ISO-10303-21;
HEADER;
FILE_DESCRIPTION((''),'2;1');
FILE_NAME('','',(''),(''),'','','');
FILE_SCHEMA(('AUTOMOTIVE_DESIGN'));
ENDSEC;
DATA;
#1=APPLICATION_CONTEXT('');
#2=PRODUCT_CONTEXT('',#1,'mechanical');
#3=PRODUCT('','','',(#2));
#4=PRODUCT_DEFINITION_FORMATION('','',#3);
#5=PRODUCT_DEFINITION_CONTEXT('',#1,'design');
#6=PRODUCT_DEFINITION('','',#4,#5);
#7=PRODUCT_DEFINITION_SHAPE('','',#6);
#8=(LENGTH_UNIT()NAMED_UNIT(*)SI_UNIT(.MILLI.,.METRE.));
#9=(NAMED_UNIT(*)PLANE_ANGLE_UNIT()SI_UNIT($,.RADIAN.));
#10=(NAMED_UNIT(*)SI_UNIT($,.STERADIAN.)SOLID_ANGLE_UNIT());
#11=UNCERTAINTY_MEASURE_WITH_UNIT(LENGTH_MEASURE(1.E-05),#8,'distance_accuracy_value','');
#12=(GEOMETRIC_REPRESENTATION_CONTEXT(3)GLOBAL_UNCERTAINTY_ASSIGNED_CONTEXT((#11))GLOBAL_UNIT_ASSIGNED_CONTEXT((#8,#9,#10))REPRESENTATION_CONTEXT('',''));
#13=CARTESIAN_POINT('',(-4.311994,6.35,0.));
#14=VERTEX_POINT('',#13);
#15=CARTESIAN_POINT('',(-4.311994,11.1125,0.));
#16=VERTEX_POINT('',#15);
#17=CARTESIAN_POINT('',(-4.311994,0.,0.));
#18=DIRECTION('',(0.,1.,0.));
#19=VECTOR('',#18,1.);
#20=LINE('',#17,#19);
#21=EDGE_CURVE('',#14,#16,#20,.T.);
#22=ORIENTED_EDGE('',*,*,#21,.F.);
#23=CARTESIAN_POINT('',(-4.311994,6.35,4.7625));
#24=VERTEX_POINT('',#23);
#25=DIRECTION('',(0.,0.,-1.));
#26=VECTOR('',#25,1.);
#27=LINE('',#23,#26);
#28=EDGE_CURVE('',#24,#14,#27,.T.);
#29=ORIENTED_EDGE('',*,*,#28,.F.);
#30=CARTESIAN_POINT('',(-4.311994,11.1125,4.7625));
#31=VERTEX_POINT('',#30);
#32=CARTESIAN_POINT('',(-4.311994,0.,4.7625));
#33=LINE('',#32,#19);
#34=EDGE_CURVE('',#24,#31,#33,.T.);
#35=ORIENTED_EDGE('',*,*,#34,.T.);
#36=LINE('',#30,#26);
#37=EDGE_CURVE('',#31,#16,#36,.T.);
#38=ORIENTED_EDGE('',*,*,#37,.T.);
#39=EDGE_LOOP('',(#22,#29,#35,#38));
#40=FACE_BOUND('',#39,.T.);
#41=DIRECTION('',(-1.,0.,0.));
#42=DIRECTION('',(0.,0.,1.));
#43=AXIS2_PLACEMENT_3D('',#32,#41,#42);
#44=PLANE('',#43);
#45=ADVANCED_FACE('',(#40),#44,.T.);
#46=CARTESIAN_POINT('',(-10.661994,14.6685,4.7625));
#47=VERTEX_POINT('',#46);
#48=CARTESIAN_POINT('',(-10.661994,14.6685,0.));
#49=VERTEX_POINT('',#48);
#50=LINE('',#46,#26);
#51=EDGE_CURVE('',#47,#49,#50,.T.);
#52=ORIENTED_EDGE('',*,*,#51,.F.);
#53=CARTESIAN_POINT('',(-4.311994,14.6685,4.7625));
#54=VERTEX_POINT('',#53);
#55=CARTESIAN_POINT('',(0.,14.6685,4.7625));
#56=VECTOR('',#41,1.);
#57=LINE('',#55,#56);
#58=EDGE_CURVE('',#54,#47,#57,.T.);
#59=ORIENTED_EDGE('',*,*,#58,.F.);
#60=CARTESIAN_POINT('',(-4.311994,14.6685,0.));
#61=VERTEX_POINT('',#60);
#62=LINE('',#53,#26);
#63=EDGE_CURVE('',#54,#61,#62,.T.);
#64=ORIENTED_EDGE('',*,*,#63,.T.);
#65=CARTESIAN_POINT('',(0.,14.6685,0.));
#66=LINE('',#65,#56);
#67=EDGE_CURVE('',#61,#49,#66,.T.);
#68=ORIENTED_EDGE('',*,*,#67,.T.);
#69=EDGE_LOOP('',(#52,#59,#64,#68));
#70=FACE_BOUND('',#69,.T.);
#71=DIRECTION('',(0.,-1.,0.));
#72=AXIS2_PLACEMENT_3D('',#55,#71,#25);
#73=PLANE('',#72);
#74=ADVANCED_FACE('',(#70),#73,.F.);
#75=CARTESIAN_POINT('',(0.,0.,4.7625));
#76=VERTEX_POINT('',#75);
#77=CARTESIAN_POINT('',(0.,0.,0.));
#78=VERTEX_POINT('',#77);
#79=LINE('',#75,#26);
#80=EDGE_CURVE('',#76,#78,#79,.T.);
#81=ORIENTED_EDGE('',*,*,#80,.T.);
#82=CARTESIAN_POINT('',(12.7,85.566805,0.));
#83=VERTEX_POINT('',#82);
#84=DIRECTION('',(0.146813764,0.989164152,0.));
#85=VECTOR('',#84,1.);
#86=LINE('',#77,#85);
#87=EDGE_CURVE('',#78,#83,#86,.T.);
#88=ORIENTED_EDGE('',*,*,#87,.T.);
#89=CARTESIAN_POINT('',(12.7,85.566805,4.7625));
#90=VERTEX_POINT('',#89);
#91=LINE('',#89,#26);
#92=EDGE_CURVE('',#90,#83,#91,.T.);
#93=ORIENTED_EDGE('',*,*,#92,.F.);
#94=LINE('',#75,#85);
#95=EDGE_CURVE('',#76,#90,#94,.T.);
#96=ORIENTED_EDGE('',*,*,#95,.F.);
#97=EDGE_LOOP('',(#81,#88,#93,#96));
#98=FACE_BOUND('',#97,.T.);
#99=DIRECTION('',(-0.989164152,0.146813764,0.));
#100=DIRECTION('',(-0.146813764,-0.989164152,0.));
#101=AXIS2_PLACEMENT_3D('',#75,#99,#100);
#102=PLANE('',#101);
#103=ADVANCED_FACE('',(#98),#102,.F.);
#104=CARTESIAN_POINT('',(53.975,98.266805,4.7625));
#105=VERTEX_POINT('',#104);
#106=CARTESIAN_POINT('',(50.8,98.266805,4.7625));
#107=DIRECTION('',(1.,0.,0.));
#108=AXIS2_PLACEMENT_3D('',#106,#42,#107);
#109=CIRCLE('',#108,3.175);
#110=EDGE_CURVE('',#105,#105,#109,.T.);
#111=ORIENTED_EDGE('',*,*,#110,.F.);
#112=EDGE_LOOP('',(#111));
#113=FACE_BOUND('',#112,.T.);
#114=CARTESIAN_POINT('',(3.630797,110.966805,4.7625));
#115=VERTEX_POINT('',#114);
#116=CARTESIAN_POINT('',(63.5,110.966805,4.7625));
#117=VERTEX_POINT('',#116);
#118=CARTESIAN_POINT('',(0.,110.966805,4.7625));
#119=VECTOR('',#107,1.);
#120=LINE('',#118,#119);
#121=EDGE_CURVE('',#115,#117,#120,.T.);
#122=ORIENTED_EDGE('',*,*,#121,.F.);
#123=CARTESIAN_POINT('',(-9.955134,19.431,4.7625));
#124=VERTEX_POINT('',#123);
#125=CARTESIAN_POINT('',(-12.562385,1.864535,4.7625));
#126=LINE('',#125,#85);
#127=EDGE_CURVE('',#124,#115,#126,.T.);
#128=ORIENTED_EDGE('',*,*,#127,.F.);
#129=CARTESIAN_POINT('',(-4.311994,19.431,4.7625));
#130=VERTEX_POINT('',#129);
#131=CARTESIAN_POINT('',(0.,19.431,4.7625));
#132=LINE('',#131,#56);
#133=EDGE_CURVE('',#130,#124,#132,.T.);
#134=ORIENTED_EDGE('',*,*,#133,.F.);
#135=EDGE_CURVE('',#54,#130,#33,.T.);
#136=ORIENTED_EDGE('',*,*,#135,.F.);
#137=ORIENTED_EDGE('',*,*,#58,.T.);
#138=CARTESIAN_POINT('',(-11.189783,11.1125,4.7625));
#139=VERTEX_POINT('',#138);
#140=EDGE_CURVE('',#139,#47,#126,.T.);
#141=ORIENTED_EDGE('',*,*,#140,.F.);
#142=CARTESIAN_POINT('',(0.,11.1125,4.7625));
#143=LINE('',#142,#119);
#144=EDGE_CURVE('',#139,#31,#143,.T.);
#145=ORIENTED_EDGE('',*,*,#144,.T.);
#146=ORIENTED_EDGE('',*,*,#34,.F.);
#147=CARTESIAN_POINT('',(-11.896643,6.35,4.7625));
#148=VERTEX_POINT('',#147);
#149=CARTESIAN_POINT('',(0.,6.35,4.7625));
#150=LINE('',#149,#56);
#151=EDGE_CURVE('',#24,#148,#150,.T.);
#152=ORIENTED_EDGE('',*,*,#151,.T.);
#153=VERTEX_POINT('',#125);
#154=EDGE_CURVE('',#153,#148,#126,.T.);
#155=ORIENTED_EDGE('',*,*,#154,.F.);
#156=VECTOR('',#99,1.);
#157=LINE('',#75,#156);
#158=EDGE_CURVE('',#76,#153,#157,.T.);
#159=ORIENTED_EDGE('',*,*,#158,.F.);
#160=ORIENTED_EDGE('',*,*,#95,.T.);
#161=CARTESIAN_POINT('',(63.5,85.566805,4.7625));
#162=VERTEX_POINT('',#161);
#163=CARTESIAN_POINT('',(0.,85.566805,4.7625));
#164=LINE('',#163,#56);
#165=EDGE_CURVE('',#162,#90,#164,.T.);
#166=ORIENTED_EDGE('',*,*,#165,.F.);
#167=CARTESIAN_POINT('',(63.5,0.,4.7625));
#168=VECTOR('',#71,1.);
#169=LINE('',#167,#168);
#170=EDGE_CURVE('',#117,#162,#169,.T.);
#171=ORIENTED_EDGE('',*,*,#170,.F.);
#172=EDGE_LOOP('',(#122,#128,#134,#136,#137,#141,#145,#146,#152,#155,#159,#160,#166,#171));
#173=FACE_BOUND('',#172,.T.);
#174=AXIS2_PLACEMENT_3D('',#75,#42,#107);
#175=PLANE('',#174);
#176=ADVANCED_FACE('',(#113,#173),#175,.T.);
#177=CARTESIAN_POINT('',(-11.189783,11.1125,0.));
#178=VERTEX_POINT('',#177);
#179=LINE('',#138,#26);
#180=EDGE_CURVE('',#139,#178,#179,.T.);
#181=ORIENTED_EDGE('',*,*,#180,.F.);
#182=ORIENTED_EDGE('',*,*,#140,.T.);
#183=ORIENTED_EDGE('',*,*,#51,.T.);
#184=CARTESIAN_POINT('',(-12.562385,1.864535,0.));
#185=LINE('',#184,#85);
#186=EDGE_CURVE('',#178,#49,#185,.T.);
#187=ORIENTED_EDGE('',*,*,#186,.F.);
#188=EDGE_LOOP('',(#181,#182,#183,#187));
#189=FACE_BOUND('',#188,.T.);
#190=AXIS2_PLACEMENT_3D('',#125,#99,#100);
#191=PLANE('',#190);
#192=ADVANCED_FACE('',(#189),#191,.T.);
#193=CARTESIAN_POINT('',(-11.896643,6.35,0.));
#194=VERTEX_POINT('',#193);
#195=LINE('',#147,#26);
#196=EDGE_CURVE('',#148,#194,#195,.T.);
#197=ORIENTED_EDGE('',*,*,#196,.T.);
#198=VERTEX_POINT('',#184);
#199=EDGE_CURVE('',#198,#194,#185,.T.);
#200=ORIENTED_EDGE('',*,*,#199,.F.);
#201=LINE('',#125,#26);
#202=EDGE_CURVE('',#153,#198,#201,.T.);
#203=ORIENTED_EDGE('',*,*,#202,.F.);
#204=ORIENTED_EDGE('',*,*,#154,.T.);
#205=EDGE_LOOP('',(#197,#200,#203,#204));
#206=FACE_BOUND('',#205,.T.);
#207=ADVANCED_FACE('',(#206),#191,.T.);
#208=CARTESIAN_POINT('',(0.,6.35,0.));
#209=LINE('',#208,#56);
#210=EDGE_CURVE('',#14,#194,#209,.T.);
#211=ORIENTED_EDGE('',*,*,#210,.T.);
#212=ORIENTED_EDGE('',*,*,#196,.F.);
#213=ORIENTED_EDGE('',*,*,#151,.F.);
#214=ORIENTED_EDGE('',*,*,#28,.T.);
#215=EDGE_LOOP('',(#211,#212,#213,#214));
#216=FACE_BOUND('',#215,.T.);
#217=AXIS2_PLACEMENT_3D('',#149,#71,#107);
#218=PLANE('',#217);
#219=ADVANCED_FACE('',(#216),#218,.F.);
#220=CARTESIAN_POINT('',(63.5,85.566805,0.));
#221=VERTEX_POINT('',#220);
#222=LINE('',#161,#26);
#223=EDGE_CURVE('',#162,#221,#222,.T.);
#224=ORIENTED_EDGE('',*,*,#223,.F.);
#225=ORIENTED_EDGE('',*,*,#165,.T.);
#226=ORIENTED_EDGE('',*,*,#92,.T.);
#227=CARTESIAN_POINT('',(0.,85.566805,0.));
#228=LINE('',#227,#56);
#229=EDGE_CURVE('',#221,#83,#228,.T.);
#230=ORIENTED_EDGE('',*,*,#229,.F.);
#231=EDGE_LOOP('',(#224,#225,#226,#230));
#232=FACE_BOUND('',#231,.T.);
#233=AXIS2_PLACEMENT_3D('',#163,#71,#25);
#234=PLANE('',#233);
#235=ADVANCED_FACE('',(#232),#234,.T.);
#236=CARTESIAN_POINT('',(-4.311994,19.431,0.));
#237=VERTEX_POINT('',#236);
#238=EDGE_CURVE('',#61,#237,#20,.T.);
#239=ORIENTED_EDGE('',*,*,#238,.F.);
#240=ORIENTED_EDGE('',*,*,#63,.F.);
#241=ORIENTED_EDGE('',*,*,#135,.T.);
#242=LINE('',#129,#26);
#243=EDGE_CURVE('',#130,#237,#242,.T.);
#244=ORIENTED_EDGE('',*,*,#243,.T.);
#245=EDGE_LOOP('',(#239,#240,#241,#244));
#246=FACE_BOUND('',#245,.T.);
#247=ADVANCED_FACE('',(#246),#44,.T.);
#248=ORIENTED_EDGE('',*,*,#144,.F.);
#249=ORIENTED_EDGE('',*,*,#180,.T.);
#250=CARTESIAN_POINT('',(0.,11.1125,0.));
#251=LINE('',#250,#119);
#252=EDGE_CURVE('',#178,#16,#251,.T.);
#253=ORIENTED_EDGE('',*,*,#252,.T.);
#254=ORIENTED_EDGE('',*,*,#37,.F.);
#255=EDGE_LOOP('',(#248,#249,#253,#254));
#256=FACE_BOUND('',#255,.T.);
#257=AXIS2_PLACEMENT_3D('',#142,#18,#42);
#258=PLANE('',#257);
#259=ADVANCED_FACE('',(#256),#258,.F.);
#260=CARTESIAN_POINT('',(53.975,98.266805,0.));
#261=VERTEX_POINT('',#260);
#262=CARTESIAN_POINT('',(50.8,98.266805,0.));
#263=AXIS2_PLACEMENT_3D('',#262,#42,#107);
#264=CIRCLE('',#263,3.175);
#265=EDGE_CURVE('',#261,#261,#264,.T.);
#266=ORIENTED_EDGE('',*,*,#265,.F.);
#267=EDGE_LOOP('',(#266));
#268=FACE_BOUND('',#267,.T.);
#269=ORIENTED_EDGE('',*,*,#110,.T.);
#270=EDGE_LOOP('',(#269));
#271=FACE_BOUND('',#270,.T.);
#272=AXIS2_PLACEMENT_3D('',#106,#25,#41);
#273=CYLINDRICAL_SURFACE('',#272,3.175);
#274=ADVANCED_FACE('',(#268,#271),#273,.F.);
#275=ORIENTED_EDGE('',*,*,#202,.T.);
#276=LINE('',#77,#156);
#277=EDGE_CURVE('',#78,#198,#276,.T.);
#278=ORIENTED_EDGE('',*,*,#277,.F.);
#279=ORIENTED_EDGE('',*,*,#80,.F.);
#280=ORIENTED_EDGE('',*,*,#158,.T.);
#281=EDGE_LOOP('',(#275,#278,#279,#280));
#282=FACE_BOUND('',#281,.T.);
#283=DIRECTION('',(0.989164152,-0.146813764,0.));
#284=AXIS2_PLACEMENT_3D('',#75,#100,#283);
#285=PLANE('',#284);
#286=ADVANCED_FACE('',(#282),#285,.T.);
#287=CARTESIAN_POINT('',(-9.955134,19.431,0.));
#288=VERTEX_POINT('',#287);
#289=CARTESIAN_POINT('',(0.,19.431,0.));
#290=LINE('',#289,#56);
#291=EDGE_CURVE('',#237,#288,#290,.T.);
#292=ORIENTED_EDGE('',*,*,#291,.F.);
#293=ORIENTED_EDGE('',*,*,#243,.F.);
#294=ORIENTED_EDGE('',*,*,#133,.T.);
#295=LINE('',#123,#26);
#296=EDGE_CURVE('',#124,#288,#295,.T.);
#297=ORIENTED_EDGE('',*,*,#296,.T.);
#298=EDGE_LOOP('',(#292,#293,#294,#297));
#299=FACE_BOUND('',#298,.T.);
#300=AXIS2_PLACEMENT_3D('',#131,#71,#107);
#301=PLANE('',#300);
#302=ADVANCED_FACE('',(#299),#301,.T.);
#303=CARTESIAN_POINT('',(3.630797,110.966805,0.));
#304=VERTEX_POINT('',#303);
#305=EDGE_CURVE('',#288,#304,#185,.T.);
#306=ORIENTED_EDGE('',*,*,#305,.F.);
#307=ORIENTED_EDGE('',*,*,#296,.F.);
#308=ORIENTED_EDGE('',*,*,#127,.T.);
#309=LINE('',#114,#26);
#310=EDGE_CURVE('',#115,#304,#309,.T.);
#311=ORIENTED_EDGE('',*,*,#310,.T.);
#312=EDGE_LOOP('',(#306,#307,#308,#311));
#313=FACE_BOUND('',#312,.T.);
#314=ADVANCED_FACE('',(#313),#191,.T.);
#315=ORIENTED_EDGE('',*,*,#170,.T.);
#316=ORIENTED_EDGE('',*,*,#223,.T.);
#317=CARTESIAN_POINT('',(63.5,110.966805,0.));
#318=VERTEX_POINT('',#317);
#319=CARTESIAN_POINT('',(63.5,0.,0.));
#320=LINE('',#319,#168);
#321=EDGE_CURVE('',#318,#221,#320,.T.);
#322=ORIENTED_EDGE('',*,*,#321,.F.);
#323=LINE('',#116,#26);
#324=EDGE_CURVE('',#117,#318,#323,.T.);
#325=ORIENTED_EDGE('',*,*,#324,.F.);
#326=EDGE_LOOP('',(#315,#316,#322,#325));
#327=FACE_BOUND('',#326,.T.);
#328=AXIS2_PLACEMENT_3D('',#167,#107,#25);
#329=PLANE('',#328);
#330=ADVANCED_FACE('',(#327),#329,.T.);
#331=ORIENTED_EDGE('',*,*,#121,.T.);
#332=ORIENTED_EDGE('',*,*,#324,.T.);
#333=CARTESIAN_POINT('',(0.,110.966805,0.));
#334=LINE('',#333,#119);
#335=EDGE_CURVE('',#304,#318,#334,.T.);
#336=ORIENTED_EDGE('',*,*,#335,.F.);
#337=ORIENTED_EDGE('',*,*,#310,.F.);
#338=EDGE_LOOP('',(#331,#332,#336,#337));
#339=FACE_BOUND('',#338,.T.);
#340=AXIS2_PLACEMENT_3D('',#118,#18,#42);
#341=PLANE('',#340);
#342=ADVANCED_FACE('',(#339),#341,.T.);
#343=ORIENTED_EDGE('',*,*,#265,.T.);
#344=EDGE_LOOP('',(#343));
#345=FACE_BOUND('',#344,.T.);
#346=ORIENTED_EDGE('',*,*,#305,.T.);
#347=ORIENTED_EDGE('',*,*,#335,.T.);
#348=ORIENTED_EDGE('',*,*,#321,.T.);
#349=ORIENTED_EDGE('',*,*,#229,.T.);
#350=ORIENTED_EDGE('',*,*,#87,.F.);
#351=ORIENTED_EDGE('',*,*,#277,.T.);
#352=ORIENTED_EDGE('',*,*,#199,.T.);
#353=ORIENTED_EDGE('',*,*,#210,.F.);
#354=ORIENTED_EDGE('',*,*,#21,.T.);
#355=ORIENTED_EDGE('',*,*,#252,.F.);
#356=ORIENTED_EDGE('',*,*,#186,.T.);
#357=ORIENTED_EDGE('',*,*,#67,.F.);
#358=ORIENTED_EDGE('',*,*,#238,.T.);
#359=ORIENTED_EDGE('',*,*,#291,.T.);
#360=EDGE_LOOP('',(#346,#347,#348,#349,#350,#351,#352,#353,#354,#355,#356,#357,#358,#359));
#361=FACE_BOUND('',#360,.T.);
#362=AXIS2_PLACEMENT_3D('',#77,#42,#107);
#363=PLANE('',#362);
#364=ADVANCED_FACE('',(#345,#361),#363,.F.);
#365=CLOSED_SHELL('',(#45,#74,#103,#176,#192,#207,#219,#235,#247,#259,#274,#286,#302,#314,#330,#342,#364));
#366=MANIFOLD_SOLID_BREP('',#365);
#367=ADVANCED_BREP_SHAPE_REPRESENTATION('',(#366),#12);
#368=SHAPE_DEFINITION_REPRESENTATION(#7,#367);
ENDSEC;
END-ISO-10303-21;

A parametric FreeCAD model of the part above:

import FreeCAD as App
import Part
import Sketcher

V = App.Vector
Q = App.Units.Quantity

doc = App.newDocument("Part")
body = doc.addObject("PartDesign::Body", "Body")

# Sketch on XY plane
sketch1 = doc.addObject("Sketcher::SketchObject", "Sketch")
body.addObject(sketch1)
sketch1.AttachmentSupport = (doc.XY_Plane, [""])
sketch1.MapMode = "FlatFace"
sketch1.addGeometry(Part.LineSegment(V(3.630797, 110.966805, 0), V(-9.955134, 19.431, 0)), False)
sketch1.addGeometry(Part.LineSegment(V(-9.955134, 19.431, 0), V(-4.311994, 19.431, 0)), False)
sketch1.addGeometry(Part.LineSegment(V(-4.311994, 19.431, 0), V(-4.311994, 14.6685, 0)), False)
sketch1.addGeometry(Part.LineSegment(V(-4.311994, 14.6685, 0), V(-10.661994, 14.6685, 0)), False)
sketch1.addGeometry(Part.LineSegment(V(-10.661994, 14.6685, 0), V(-11.189783, 11.1125, 0)), False)
sketch1.addGeometry(Part.LineSegment(V(-11.189783, 11.1125, 0), V(-4.311994, 11.1125, 0)), False)
sketch1.addGeometry(Part.LineSegment(V(-4.311994, 11.1125, 0), V(-4.311994, 6.35, 0)), False)
sketch1.addGeometry(Part.LineSegment(V(-4.311994, 6.35, 0), V(-11.896643, 6.35, 0)), False)
sketch1.addGeometry(Part.LineSegment(V(-11.896643, 6.35, 0), V(-12.562385, 1.864535, 0)), False)
sketch1.addGeometry(Part.LineSegment(V(-12.562385, 1.864535, 0), V(0, 0, 0)), False)
sketch1.addGeometry(Part.LineSegment(V(0, 0, 0), V(12.7, 85.566805, 0)), False)
sketch1.addGeometry(Part.LineSegment(V(12.7, 85.566805, 0), V(63.5, 85.566805, 0)), False)
sketch1.addGeometry(Part.LineSegment(V(63.5, 85.566805, 0), V(63.5, 110.966805, 0)), False)
sketch1.addGeometry(Part.LineSegment(V(63.5, 110.966805, 0), V(3.630797, 110.966805, 0)), False)
sketch1.addGeometry(Part.Circle(V(50.8, 98.266805, 0), V(0, 0, 1), 3.175), False)
sketch1.addConstraint(Sketcher.Constraint("Coincident", 0, 2, 1, 1))
sketch1.addConstraint(Sketcher.Constraint("Coincident", 1, 2, 2, 1))
sketch1.addConstraint(Sketcher.Constraint("Coincident", 2, 2, 3, 1))
sketch1.addConstraint(Sketcher.Constraint("Coincident", 3, 2, 4, 1))
sketch1.addConstraint(Sketcher.Constraint("Coincident", 4, 2, 5, 1))
sketch1.addConstraint(Sketcher.Constraint("Coincident", 5, 2, 6, 1))
sketch1.addConstraint(Sketcher.Constraint("Coincident", 6, 2, 7, 1))
sketch1.addConstraint(Sketcher.Constraint("Coincident", 7, 2, 8, 1))
sketch1.addConstraint(Sketcher.Constraint("Coincident", 8, 2, 9, 1))
sketch1.addConstraint(Sketcher.Constraint("Coincident", 9, 2, 10, 1))
sketch1.addConstraint(Sketcher.Constraint("Coincident", 10, 2, 11, 1))
sketch1.addConstraint(Sketcher.Constraint("Coincident", 11, 2, 12, 1))
sketch1.addConstraint(Sketcher.Constraint("Coincident", 12, 2, 13, 1))
sketch1.addConstraint(Sketcher.Constraint("Coincident", 13, 2, 0, 1))
sketch1.addConstraint(Sketcher.Constraint("Horizontal", 1))
sketch1.addConstraint(Sketcher.Constraint("Vertical", 2))
sketch1.addConstraint(Sketcher.Constraint("Horizontal", 3))
sketch1.addConstraint(Sketcher.Constraint("Horizontal", 5))
sketch1.addConstraint(Sketcher.Constraint("Vertical", 6))
sketch1.addConstraint(Sketcher.Constraint("Horizontal", 7))
sketch1.addConstraint(Sketcher.Constraint("Horizontal", 11))
sketch1.addConstraint(Sketcher.Constraint("Vertical", 12))
sketch1.addConstraint(Sketcher.Constraint("Horizontal", 13))
sketch1.addConstraint(Sketcher.Constraint("Coincident", 9, 2, -1, 1))
sketch1.addConstraint(Sketcher.Constraint("Diameter", 14, Q("0.25 in")))
sketch1.addConstraint(Sketcher.Constraint("DistanceX", 11, 1, 11, 2, Q("2 in")))
sketch1.addConstraint(Sketcher.Constraint("DistanceY", 12, 1, 12, 2, Q("1 in")))
sketch1.addConstraint(Sketcher.Constraint("DistanceX", -1, 1, 14, 3, Q("2 in")))
sketch1.addConstraint(Sketcher.Constraint("Distance", 9, Q("0.5 in")))
sketch1.addConstraint(Sketcher.Constraint("DistanceX", 3, 2, 3, 1, Q("0.25 in")))
sketch1.addConstraint(Sketcher.Constraint("DistanceX", -1, 1, 10, 2, Q("0.5 in")))
sketch1.addConstraint(Sketcher.Constraint("DistanceY", 10, 2, 14, 3, Q("0.5 in")))
sketch1.addConstraint(Sketcher.Constraint("DistanceY", 2, 2, 2, 1, Q("0.1875 in")))
sketch1.addConstraint(Sketcher.Constraint("DistanceY", 6, 2, 6, 1, Q("0.1875 in")))
sketch1.addConstraint(Sketcher.Constraint("DistanceY", -1, 1, 6, 2, Q("0.25 in")))
sketch1.addConstraint(Sketcher.Constraint("DistanceY", 4, 2, 3, 2, Q("0.14 in")))
sketch1.addConstraint(Sketcher.Constraint("DistanceX", 3, 2, 5, 2, Q("0.25 in")))
sketch1.addConstraint(Sketcher.Constraint("Distance", 8, 4.534601))
sketch1.addConstraint(Sketcher.Constraint("DistanceX", 1, 1, 1, 2, 5.64314))
sketch1.addConstraint(Sketcher.Constraint("DistanceX", 5, 1, 5, 2, 6.877789))
sketch1.addConstraint(Sketcher.Constraint("DistanceX", 7, 2, 7, 1, 7.584649))
sketch1.addConstraint(Sketcher.Constraint("DistanceX", 8, 2, 4, 2, 1.372602))
sketch1.addConstraint(Sketcher.Constraint("Distance", 0, 92.538539))
sketch1.addConstraint(Sketcher.Constraint("Distance", 10, 86.504151))
pad1 = doc.addObject("PartDesign::Pad", "Pad")
body.addObject(pad1)
pad1.Profile = sketch1
pad1.Length = Q("0.1875 in")

doc.recompute()
